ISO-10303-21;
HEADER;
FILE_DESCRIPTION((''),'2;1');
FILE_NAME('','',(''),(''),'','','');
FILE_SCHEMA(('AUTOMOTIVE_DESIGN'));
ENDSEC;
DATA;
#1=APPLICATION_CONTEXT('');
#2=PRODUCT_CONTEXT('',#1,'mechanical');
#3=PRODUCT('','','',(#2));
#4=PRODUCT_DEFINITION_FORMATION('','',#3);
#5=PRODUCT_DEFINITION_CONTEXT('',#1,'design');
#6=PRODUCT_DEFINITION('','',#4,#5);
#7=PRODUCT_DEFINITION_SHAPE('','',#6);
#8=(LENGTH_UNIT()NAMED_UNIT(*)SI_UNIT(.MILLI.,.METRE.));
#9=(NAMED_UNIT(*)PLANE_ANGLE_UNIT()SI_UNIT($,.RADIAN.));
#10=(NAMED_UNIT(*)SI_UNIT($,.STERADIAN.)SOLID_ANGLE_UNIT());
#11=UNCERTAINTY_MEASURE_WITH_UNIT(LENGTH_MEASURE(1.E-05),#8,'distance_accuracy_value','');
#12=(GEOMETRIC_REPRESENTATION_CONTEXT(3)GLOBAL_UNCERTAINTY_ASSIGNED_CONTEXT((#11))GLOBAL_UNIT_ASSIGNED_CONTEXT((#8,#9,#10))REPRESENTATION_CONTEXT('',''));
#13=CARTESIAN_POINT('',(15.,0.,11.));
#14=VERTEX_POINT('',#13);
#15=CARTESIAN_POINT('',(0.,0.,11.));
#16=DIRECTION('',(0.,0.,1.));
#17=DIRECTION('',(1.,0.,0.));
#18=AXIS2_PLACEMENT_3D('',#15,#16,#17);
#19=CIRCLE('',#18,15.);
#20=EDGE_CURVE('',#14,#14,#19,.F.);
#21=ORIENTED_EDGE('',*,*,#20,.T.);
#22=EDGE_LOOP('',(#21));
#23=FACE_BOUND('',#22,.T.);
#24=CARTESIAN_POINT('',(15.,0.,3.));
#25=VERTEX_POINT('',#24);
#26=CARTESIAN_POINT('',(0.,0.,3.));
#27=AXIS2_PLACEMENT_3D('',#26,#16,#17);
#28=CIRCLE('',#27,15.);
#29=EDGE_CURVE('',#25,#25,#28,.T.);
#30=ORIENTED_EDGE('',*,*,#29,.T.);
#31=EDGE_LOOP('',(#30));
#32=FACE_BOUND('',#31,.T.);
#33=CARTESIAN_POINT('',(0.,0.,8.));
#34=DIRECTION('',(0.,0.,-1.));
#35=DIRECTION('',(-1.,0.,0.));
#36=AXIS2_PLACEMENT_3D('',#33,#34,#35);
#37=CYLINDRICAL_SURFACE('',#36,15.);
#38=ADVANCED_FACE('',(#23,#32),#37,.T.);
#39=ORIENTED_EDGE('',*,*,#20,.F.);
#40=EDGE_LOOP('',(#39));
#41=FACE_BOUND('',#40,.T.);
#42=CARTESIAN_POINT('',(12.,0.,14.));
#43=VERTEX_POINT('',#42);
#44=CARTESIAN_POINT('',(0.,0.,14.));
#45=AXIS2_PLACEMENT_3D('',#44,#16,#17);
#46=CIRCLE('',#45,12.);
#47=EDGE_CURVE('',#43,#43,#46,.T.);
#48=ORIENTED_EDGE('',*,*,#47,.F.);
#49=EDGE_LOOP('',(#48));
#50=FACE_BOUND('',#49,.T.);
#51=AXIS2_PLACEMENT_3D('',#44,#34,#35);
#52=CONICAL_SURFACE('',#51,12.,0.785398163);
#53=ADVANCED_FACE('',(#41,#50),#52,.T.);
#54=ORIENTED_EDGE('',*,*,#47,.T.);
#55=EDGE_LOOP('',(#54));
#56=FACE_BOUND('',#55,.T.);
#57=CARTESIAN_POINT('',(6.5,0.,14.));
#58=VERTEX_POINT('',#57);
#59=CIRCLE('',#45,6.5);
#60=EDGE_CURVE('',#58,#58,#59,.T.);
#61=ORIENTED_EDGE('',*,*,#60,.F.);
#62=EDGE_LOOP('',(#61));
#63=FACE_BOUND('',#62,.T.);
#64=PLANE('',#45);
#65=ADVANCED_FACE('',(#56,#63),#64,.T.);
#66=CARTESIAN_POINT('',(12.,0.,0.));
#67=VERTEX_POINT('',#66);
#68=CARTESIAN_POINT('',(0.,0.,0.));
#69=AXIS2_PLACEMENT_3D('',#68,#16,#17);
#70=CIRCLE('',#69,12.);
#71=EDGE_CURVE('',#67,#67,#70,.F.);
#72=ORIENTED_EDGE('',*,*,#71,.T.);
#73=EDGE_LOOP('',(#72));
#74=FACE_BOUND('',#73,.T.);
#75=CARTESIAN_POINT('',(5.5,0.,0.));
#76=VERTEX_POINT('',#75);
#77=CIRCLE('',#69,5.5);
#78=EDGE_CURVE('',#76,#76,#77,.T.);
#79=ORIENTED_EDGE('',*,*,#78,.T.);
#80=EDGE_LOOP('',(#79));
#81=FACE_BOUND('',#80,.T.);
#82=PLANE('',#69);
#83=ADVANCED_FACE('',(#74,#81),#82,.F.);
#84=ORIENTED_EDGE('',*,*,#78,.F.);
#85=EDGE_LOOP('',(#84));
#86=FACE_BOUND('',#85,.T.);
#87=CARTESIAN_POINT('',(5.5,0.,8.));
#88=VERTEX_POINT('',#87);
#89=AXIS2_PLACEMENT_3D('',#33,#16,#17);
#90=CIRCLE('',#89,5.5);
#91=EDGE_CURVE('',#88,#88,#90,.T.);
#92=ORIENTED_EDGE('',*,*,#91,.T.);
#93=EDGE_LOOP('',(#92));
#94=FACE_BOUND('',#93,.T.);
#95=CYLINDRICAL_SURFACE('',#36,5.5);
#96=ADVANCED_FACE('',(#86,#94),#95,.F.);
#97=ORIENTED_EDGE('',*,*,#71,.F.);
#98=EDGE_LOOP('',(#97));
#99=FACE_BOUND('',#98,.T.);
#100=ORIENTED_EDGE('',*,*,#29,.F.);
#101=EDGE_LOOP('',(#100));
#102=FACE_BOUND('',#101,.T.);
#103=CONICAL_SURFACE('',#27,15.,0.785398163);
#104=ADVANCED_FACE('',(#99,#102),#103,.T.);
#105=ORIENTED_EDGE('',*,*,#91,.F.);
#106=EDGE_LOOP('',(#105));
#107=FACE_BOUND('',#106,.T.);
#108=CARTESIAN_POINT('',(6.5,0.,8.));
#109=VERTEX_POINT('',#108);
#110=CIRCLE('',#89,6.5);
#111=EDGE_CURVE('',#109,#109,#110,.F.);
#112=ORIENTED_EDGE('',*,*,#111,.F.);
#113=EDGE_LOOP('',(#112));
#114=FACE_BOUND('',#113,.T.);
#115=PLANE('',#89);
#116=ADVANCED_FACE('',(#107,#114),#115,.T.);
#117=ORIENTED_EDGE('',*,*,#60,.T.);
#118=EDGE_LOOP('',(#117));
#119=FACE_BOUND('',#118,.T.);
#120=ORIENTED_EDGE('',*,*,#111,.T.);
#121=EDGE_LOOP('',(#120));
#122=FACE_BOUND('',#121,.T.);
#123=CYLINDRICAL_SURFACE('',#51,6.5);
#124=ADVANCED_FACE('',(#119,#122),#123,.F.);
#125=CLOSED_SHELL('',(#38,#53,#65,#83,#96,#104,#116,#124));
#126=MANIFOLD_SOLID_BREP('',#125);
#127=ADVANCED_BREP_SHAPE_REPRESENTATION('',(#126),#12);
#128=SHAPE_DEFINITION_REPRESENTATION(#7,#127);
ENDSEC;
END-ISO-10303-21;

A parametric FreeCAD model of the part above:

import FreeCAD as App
import Part
import Sketcher


def edges_at(feature, points):
    """Names of the edges that pass closest to the given points."""
    edges = feature.Shape.Edges
    near = lambda p: min(range(len(edges)), key=lambda i: edges[i].distToShape(Part.Vertex(*p))[0])
    return sorted({f"Edge{near(p) + 1}" for p in points})

doc = App.newDocument("Part")
body = doc.addObject("PartDesign::Body", "Body")

# Sketch on XY plane
sketch1 = doc.addObject("Sketcher::SketchObject", "Sketch")
body.addObject(sketch1)
sketch1.AttachmentSupport = (doc.XY_Plane, [""])
sketch1.MapMode = "FlatFace"
sketch1.addGeometry(Part.Circle(App.Vector(0, 0, 0), App.Vector(0, 0, 1), 15), False)
sketch1.addGeometry(Part.Circle(App.Vector(0, 0, 0), App.Vector(0, 0, 1), 6), False)
sketch1.addConstraint(Sketcher.Constraint("Coincident", 0, 3, -1, 1))
sketch1.addConstraint(Sketcher.Constraint("Coincident", 1, 3, -1, 1))
sketch1.addConstraint(Sketcher.Constraint("Diameter", 0, 30.0))
sketch1.addConstraint(Sketcher.Constraint("Diameter", 1, 11.0))
pad1 = doc.addObject("PartDesign::Pad", "Pad")
body.addObject(pad1)
pad1.Profile = sketch1
pad1.Length = 8

# Sketch on XY plane
sketch2 = doc.addObject("Sketcher::SketchObject", "Sketch001")
body.addObject(sketch2)
sketch2.AttachmentSupport = (doc.XY_Plane, [""])
sketch2.MapMode = "FlatFace"
sketch2.AttachmentOffset = App.Placement(App.Vector(0, 0, 8), App.Rotation())
sketch2.addGeometry(Part.Circle(App.Vector(0, 0, 0), App.Vector(0, 0, 1), 15), False)
sketch2.addGeometry(Part.Circle(App.Vector(0, 0, 0), App.Vector(0, 0, 1), 6), False)
sketch2.addConstraint(Sketcher.Constraint("Coincident", 0, 3, -1, 1))
sketch2.addConstraint(Sketcher.Constraint("Coincident", 1, 3, -1, 1))
sketch2.addConstraint(Sketcher.Constraint("Diameter", 0, 30.0))
sketch2.addConstraint(Sketcher.Constraint("Diameter", 1, 13.0))
pad2 = doc.addObject("PartDesign::Pad", "Pad001")
body.addObject(pad2)
pad2.Profile = sketch2
pad2.Length = 6
doc.recompute()

chamfer = doc.addObject("PartDesign::Chamfer", "Chamfer")
body.addObject(chamfer)
chamfer.Base = (pad2, edges_at(pad2, [(-15, 0, 14), (-15, 0, 0)]))
chamfer.Size = 3

doc.recompute()
